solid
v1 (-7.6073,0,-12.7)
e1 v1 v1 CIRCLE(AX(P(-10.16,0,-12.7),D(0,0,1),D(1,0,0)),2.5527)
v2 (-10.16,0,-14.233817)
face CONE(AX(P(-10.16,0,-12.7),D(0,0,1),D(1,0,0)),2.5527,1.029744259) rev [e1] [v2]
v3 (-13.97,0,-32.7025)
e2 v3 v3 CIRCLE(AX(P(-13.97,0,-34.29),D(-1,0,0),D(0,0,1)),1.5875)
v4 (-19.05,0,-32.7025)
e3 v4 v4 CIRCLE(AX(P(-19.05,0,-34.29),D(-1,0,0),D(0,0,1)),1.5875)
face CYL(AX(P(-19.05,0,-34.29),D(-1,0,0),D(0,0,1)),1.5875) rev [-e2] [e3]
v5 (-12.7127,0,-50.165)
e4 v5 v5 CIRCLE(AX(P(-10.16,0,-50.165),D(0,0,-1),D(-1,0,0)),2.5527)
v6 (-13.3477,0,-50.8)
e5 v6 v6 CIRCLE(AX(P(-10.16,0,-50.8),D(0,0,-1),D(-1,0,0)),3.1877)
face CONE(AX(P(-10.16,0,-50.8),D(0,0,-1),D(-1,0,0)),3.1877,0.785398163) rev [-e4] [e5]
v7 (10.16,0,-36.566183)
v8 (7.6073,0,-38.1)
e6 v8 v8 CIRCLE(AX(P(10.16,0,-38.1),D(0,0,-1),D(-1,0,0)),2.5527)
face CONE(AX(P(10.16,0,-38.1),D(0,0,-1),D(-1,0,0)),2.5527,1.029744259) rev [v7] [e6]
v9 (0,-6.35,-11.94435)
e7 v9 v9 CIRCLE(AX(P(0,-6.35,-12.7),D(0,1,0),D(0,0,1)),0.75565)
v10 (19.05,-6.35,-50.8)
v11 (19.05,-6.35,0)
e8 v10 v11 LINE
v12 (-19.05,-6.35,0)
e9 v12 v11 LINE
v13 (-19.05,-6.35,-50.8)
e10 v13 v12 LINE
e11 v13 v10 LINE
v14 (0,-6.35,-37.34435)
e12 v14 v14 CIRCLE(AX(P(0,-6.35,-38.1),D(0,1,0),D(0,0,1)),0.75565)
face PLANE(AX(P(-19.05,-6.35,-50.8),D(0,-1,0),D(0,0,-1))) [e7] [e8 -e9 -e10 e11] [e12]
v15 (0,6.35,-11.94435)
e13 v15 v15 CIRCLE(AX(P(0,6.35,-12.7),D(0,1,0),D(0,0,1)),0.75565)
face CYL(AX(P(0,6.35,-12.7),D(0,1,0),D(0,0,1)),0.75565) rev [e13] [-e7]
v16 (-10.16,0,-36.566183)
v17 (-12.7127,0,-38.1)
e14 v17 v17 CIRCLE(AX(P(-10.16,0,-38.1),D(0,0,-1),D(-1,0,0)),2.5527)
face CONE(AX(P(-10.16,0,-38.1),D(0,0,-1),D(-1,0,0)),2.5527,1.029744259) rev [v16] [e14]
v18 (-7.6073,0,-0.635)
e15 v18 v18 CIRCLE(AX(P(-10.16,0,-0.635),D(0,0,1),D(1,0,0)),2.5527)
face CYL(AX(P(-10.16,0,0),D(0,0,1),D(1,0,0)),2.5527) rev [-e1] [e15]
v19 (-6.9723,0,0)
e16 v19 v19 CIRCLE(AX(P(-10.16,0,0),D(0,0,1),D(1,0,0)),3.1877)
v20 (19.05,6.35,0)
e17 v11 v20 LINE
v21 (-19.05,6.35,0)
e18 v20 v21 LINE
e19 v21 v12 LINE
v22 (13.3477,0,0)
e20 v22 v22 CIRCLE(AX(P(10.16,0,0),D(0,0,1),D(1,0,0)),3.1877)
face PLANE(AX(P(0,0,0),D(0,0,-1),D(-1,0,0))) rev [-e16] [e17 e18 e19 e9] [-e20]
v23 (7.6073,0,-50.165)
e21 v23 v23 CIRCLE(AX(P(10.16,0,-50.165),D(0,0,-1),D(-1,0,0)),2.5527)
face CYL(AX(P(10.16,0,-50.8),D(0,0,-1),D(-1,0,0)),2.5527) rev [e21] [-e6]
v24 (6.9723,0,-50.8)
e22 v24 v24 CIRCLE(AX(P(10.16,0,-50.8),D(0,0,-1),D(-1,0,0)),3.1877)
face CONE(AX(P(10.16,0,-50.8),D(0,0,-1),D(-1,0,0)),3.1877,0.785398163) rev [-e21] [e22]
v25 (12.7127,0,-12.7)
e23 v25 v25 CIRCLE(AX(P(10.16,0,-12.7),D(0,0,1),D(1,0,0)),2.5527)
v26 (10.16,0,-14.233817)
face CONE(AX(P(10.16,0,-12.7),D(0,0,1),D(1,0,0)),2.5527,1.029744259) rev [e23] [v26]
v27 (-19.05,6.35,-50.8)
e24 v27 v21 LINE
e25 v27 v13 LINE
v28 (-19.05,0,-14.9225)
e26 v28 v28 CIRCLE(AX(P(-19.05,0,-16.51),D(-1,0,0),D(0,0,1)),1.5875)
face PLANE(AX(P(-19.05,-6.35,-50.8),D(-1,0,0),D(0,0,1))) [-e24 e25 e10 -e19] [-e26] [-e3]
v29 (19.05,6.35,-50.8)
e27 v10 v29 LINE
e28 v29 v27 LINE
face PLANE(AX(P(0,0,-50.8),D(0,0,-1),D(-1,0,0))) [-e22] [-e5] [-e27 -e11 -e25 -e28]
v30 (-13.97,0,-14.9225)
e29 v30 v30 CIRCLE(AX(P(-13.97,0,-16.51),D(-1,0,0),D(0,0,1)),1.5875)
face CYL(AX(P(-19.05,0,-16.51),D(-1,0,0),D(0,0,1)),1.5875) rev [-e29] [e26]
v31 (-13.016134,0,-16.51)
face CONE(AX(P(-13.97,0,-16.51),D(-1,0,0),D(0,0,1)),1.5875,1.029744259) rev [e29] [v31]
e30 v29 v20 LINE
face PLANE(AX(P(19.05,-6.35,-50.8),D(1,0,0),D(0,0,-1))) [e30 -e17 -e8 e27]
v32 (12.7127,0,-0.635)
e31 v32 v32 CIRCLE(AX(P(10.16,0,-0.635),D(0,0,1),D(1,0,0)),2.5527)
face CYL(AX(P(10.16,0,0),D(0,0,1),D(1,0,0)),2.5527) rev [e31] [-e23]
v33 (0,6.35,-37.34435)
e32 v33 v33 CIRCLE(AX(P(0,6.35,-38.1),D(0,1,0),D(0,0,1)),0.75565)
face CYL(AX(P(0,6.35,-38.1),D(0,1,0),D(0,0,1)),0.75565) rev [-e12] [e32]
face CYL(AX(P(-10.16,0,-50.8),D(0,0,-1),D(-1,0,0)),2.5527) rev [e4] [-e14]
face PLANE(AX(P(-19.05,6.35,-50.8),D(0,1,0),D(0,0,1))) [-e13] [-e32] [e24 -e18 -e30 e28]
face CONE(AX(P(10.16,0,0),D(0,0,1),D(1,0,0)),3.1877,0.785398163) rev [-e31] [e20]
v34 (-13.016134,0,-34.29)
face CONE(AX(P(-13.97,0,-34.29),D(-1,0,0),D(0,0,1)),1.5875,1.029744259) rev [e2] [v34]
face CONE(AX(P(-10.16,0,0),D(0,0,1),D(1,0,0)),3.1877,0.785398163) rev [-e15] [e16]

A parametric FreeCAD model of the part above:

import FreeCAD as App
import Part
import Sketcher
from FreeCAD import Vector
Q = App.Units.Quantity


def add_polygon(sketch, points):
    """Adds a closed chain of lines whose ends are joined by coincident constraints."""
    first, n = sketch.GeometryCount, len(points)
    for a, b in zip(points, points[1:] + points[:1]):
        sketch.addGeometry(Part.LineSegment(App.Vector(*a, 0), App.Vector(*b, 0)), False)
    for i in range(n):
        sketch.addConstraint(Sketcher.Constraint("Coincident", first + i, 2, first + (i + 1) % n, 1))

doc = App.newDocument("Part")
params = doc.addObject("Spreadsheet::Sheet", "Params")
for row, (alias, value) in enumerate([
    ("sketch1_width", "1.5 in"),
    ("sketch1_height", "0.5 in"),
    ("pad1_length", "2 in"),
    ("sketch2_height", "0.475 in"),
    ("groove_angle", "360 deg"),
    ("linearpattern_pitch", "0.8 in"),
    ("sketch3_height", "0.475 in"),
    ("groove2_angle", "360 deg"),
    ("hole_diameter", "0.0595 in"),
    ("sketch5_diameter", "0.125 in"),
    ("hole2_diameter", "0.125 in"),
    ("hole2_depth", "0.2 in"),
], start=1):
    params.set(f"A{row}", alias)
    params.set(f"B{row}", "=" + value)
    params.setAlias(f"B{row}", alias)

body = doc.addObject("PartDesign::Body", "Body")

# Sketch on XY plane
sketch1 = body.newObject("Sketcher::SketchObject", "Sketch")
sketch1.AttachmentSupport = (doc.getObject("XY_Plane"), [""])
sketch1.MapMode = "FlatFace"
add_polygon(sketch1, [(-19, 6), (-19, -6), (19, -6), (19, 6)])  # lines 0-3
sketch1.addConstraint(Sketcher.Constraint("Vertical", 0))
sketch1.addConstraint(Sketcher.Constraint("Horizontal", 1))
sketch1.addConstraint(Sketcher.Constraint("Vertical", 2))
sketch1.addConstraint(Sketcher.Constraint("Horizontal", 3))
sketch1.addConstraint(Sketcher.Constraint("Symmetric", 0, 2, 2, 2, -1, 1))
sketch1.addConstraint(Sketcher.Constraint("DistanceX", 1, 1, 1, 2, Q("1.5 in")))
sketch1.addConstraint(Sketcher.Constraint("DistanceY", 0, 2, 0, 1, Q("0.5 in")))
sketch1.setExpression("Constraints[9]", "Params.sketch1_width")
sketch1.setExpression("Constraints[10]", "Params.sketch1_height")
pad1 = body.newObject("PartDesign::Pad", "Pad")
pad1.Profile = sketch1
pad1.setExpression("Length", "Params.pad1_length")
pad1.Reversed = True

# Sketch on YZ plane
sketch2 = body.newObject("Sketcher::SketchObject", "Sketch001")
sketch2.AttachmentSupport = (doc.getObject("YZ_Plane"), [""])
sketch2.MapMode = "FlatFace"
sketch2.AttachmentOffset = App.Placement(Vector(0, 0, -0.4 * 25.4), App.Rotation())
add_polygon(sketch2, [(0, -14.2), (0, 0), (-3.2, 0), (-2.6, -0.6), (-2.6, -12.7)])  # lines 0-4
sketch2.addConstraint(Sketcher.Constraint("Vertical", 0))
sketch2.addConstraint(Sketcher.Constraint("Horizontal", 1))
sketch2.addConstraint(Sketcher.Constraint("Vertical", 3))
sketch2.addConstraint(Sketcher.Constraint("Coincident", 0, 2, -1, 1))
sketch2.addConstraint(Sketcher.Constraint("Angle", 2, Q("-45 deg")))
sketch2.addConstraint(Sketcher.Constraint("Angle", 4, Q("-31 deg")))
sketch2.addConstraint(Sketcher.Constraint("DistanceY", 3, 2, -1, 1, Q("0.5 in")))
sketch2.addConstraint(Sketcher.Constraint("DistanceY", 3, 2, 3, 1, Q("0.475 in")))
sketch2.addConstraint(Sketcher.Constraint("DistanceX", 1, 2, 1, 1, Q("0.1255 in")))
sketch2.setExpression("Constraints[12]", "Params.sketch2_height")
groove = body.newObject("PartDesign::Groove", "Groove")
groove.Profile = sketch2
groove.ReferenceAxis = (sketch2, ["V_Axis"])
groove.setExpression("Angle", "Params.groove_angle")
doc.recompute()

linearpattern = body.newObject("PartDesign::LinearPattern", "LinearPattern")
linearpattern.Originals = [groove]
linearpattern.Direction = (doc.getObject("X_Axis"), [""])
linearpattern.Mode = "offset"
linearpattern.setExpression("Offset", "Params.linearpattern_pitch")
linearpattern.Occurrences = 2
body.Tip = linearpattern
doc.recompute()

datumplane = body.newObject("PartDesign::Plane", "DatumPlane")
datumplane.AttachmentSupport = (doc.getObject("XY_Plane"), [""])
datumplane.MapMode = "FlatFace"
datumplane.AttachmentOffset = App.Placement(Vector(0, 0, -1 * 25.4), App.Rotation())
mirrored = body.newObject("PartDesign::Mirrored", "Mirrored")
mirrored.Originals = [groove]
mirrored.MirrorPlane = (datumplane, [""])
body.Tip = mirrored

# Sketch on YZ plane
sketch3 = body.newObject("Sketcher::SketchObject", "Sketch002")
sketch3.AttachmentSupport = (doc.getObject("YZ_Plane"), [""])
sketch3.MapMode = "FlatFace"
sketch3.AttachmentOffset = App.Placement(Vector(0, 0, 0.4 * 25.4), App.Rotation())
add_polygon(sketch3, [(0, -50.8), (0, -36.6), (-2.6, -38.1), (-2.6, -50.2), (-3.2, -50.8)])  # lines 0-4
sketch3.addConstraint(Sketcher.Constraint("Vertical", 0))
sketch3.addConstraint(Sketcher.Constraint("Vertical", 2))
sketch3.addConstraint(Sketcher.Constraint("Horizontal", 4))
sketch3.addConstraint(Sketcher.Constraint("PointOnObject", 0, 2, -2))
sketch3.addConstraint(Sketcher.Constraint("DistanceY", 3, 2, -1, 1, Q("2 in")))
sketch3.addConstraint(Sketcher.Constraint("Angle", 1, Q("-149 deg")))
sketch3.addConstraint(Sketcher.Constraint("Angle", 3, Q("-135 deg")))
sketch3.addConstraint(Sketcher.Constraint("DistanceY", 1, 2, -1, 1, Q("1.5 in")))
sketch3.addConstraint(Sketcher.Constraint("DistanceY", 2, 2, 2, 1, Q("0.475 in")))
sketch3.addConstraint(Sketcher.Constraint("DistanceX", 4, 1, 4, 2, Q("0.1255 in")))
sketch3.setExpression("Constraints[13]", "Params.sketch3_height")
groove2 = body.newObject("PartDesign::Groove", "Groove001")
groove2.Profile = sketch3
groove2.ReferenceAxis = (sketch3, ["V_Axis"])
groove2.setExpression("Angle", "Params.groove2_angle")

# Sketch on XZ plane
sketch4 = body.newObject("Sketcher::SketchObject", "Sketch003")
sketch4.AttachmentSupport = (doc.getObject("XZ_Plane"), [""])
sketch4.MapMode = "FlatFace"
sketch4.AttachmentOffset = App.Placement(Vector(0, 0, -0.25 * 25.4), App.Rotation())
sketch4.addGeometry(Part.Circle(Vector(0, -38.1, 0), Vector(0, 0, 1), 0.8), False)
sketch4.addGeometry(Part.Circle(Vector(0, -12.7, 0), Vector(0, 0, 1), 0.8), False)
sketch4.addConstraint(Sketcher.Constraint("Equal", 0, 1))
sketch4.addConstraint(Sketcher.Constraint("PointOnObject", 0, 3, -2))
sketch4.addConstraint(Sketcher.Constraint("PointOnObject", 1, 3, -2))
sketch4.addConstraint(Sketcher.Constraint("DistanceY", 0, 3, 1, 3, Q("1 in")))
sketch4.addConstraint(Sketcher.Constraint("Diameter", 0, Q("0.0595 in")))
sketch4.addConstraint(Sketcher.Constraint("DistanceY", 0, 3, -1, 1, Q("1.5 in")))
doc.recompute()
hole = body.newObject("PartDesign::Hole", "Hole")
hole.Profile = sketch4
hole.ThreadType = "None"
hole.setExpression("Diameter", "Params.hole_diameter")
hole.DepthType = "ThroughAll"
hole.Reversed = True

# Sketch on YZ plane
sketch5 = body.newObject("Sketcher::SketchObject", "Sketch004")
sketch5.AttachmentSupport = (doc.getObject("YZ_Plane"), [""])
sketch5.MapMode = "FlatFace"
sketch5.AttachmentOffset = App.Placement(Vector(0, 0, -0.75 * 25.4), App.Rotation())
sketch5.addGeometry(Part.Circle(Vector(0, -34.3, 0), Vector(0, 0, 1), 1.6), False)
sketch5.addGeometry(Part.Circle(Vector(0, -16.5, 0), Vector(0, 0, 1), 1.6), False)
sketch5.addConstraint(Sketcher.Constraint("Equal", 0, 1))
sketch5.addConstraint(Sketcher.Constraint("PointOnObject", 0, 3, -2))
sketch5.addConstraint(Sketcher.Constraint("PointOnObject", 1, 3, -2))
sketch5.addConstraint(Sketcher.Constraint("Diameter", 0, Q("0.125 in")))
sketch5.addConstraint(Sketcher.Constraint("DistanceY", 0, 3, 1, 3, Q("0.7 in")))
sketch5.addConstraint(Sketcher.Constraint("DistanceY", 0, 3, -1, 1, Q("1.35 in")))
sketch5.setExpression("Constraints[3]", "Params.sketch5_diameter")
doc.recompute()
hole2 = body.newObject("PartDesign::Hole", "Hole001")
hole2.Profile = sketch5
hole2.ThreadType = "None"
hole2.setExpression("Diameter", "Params.hole2_diameter")
hole2.DepthType = "Dimension"
hole2.setExpression("Depth", "Params.hole2_depth")
hole2.DrillPoint = "Angled"
hole2.DrillPointAngle = 118
hole2.Reversed = True

doc.recompute()
